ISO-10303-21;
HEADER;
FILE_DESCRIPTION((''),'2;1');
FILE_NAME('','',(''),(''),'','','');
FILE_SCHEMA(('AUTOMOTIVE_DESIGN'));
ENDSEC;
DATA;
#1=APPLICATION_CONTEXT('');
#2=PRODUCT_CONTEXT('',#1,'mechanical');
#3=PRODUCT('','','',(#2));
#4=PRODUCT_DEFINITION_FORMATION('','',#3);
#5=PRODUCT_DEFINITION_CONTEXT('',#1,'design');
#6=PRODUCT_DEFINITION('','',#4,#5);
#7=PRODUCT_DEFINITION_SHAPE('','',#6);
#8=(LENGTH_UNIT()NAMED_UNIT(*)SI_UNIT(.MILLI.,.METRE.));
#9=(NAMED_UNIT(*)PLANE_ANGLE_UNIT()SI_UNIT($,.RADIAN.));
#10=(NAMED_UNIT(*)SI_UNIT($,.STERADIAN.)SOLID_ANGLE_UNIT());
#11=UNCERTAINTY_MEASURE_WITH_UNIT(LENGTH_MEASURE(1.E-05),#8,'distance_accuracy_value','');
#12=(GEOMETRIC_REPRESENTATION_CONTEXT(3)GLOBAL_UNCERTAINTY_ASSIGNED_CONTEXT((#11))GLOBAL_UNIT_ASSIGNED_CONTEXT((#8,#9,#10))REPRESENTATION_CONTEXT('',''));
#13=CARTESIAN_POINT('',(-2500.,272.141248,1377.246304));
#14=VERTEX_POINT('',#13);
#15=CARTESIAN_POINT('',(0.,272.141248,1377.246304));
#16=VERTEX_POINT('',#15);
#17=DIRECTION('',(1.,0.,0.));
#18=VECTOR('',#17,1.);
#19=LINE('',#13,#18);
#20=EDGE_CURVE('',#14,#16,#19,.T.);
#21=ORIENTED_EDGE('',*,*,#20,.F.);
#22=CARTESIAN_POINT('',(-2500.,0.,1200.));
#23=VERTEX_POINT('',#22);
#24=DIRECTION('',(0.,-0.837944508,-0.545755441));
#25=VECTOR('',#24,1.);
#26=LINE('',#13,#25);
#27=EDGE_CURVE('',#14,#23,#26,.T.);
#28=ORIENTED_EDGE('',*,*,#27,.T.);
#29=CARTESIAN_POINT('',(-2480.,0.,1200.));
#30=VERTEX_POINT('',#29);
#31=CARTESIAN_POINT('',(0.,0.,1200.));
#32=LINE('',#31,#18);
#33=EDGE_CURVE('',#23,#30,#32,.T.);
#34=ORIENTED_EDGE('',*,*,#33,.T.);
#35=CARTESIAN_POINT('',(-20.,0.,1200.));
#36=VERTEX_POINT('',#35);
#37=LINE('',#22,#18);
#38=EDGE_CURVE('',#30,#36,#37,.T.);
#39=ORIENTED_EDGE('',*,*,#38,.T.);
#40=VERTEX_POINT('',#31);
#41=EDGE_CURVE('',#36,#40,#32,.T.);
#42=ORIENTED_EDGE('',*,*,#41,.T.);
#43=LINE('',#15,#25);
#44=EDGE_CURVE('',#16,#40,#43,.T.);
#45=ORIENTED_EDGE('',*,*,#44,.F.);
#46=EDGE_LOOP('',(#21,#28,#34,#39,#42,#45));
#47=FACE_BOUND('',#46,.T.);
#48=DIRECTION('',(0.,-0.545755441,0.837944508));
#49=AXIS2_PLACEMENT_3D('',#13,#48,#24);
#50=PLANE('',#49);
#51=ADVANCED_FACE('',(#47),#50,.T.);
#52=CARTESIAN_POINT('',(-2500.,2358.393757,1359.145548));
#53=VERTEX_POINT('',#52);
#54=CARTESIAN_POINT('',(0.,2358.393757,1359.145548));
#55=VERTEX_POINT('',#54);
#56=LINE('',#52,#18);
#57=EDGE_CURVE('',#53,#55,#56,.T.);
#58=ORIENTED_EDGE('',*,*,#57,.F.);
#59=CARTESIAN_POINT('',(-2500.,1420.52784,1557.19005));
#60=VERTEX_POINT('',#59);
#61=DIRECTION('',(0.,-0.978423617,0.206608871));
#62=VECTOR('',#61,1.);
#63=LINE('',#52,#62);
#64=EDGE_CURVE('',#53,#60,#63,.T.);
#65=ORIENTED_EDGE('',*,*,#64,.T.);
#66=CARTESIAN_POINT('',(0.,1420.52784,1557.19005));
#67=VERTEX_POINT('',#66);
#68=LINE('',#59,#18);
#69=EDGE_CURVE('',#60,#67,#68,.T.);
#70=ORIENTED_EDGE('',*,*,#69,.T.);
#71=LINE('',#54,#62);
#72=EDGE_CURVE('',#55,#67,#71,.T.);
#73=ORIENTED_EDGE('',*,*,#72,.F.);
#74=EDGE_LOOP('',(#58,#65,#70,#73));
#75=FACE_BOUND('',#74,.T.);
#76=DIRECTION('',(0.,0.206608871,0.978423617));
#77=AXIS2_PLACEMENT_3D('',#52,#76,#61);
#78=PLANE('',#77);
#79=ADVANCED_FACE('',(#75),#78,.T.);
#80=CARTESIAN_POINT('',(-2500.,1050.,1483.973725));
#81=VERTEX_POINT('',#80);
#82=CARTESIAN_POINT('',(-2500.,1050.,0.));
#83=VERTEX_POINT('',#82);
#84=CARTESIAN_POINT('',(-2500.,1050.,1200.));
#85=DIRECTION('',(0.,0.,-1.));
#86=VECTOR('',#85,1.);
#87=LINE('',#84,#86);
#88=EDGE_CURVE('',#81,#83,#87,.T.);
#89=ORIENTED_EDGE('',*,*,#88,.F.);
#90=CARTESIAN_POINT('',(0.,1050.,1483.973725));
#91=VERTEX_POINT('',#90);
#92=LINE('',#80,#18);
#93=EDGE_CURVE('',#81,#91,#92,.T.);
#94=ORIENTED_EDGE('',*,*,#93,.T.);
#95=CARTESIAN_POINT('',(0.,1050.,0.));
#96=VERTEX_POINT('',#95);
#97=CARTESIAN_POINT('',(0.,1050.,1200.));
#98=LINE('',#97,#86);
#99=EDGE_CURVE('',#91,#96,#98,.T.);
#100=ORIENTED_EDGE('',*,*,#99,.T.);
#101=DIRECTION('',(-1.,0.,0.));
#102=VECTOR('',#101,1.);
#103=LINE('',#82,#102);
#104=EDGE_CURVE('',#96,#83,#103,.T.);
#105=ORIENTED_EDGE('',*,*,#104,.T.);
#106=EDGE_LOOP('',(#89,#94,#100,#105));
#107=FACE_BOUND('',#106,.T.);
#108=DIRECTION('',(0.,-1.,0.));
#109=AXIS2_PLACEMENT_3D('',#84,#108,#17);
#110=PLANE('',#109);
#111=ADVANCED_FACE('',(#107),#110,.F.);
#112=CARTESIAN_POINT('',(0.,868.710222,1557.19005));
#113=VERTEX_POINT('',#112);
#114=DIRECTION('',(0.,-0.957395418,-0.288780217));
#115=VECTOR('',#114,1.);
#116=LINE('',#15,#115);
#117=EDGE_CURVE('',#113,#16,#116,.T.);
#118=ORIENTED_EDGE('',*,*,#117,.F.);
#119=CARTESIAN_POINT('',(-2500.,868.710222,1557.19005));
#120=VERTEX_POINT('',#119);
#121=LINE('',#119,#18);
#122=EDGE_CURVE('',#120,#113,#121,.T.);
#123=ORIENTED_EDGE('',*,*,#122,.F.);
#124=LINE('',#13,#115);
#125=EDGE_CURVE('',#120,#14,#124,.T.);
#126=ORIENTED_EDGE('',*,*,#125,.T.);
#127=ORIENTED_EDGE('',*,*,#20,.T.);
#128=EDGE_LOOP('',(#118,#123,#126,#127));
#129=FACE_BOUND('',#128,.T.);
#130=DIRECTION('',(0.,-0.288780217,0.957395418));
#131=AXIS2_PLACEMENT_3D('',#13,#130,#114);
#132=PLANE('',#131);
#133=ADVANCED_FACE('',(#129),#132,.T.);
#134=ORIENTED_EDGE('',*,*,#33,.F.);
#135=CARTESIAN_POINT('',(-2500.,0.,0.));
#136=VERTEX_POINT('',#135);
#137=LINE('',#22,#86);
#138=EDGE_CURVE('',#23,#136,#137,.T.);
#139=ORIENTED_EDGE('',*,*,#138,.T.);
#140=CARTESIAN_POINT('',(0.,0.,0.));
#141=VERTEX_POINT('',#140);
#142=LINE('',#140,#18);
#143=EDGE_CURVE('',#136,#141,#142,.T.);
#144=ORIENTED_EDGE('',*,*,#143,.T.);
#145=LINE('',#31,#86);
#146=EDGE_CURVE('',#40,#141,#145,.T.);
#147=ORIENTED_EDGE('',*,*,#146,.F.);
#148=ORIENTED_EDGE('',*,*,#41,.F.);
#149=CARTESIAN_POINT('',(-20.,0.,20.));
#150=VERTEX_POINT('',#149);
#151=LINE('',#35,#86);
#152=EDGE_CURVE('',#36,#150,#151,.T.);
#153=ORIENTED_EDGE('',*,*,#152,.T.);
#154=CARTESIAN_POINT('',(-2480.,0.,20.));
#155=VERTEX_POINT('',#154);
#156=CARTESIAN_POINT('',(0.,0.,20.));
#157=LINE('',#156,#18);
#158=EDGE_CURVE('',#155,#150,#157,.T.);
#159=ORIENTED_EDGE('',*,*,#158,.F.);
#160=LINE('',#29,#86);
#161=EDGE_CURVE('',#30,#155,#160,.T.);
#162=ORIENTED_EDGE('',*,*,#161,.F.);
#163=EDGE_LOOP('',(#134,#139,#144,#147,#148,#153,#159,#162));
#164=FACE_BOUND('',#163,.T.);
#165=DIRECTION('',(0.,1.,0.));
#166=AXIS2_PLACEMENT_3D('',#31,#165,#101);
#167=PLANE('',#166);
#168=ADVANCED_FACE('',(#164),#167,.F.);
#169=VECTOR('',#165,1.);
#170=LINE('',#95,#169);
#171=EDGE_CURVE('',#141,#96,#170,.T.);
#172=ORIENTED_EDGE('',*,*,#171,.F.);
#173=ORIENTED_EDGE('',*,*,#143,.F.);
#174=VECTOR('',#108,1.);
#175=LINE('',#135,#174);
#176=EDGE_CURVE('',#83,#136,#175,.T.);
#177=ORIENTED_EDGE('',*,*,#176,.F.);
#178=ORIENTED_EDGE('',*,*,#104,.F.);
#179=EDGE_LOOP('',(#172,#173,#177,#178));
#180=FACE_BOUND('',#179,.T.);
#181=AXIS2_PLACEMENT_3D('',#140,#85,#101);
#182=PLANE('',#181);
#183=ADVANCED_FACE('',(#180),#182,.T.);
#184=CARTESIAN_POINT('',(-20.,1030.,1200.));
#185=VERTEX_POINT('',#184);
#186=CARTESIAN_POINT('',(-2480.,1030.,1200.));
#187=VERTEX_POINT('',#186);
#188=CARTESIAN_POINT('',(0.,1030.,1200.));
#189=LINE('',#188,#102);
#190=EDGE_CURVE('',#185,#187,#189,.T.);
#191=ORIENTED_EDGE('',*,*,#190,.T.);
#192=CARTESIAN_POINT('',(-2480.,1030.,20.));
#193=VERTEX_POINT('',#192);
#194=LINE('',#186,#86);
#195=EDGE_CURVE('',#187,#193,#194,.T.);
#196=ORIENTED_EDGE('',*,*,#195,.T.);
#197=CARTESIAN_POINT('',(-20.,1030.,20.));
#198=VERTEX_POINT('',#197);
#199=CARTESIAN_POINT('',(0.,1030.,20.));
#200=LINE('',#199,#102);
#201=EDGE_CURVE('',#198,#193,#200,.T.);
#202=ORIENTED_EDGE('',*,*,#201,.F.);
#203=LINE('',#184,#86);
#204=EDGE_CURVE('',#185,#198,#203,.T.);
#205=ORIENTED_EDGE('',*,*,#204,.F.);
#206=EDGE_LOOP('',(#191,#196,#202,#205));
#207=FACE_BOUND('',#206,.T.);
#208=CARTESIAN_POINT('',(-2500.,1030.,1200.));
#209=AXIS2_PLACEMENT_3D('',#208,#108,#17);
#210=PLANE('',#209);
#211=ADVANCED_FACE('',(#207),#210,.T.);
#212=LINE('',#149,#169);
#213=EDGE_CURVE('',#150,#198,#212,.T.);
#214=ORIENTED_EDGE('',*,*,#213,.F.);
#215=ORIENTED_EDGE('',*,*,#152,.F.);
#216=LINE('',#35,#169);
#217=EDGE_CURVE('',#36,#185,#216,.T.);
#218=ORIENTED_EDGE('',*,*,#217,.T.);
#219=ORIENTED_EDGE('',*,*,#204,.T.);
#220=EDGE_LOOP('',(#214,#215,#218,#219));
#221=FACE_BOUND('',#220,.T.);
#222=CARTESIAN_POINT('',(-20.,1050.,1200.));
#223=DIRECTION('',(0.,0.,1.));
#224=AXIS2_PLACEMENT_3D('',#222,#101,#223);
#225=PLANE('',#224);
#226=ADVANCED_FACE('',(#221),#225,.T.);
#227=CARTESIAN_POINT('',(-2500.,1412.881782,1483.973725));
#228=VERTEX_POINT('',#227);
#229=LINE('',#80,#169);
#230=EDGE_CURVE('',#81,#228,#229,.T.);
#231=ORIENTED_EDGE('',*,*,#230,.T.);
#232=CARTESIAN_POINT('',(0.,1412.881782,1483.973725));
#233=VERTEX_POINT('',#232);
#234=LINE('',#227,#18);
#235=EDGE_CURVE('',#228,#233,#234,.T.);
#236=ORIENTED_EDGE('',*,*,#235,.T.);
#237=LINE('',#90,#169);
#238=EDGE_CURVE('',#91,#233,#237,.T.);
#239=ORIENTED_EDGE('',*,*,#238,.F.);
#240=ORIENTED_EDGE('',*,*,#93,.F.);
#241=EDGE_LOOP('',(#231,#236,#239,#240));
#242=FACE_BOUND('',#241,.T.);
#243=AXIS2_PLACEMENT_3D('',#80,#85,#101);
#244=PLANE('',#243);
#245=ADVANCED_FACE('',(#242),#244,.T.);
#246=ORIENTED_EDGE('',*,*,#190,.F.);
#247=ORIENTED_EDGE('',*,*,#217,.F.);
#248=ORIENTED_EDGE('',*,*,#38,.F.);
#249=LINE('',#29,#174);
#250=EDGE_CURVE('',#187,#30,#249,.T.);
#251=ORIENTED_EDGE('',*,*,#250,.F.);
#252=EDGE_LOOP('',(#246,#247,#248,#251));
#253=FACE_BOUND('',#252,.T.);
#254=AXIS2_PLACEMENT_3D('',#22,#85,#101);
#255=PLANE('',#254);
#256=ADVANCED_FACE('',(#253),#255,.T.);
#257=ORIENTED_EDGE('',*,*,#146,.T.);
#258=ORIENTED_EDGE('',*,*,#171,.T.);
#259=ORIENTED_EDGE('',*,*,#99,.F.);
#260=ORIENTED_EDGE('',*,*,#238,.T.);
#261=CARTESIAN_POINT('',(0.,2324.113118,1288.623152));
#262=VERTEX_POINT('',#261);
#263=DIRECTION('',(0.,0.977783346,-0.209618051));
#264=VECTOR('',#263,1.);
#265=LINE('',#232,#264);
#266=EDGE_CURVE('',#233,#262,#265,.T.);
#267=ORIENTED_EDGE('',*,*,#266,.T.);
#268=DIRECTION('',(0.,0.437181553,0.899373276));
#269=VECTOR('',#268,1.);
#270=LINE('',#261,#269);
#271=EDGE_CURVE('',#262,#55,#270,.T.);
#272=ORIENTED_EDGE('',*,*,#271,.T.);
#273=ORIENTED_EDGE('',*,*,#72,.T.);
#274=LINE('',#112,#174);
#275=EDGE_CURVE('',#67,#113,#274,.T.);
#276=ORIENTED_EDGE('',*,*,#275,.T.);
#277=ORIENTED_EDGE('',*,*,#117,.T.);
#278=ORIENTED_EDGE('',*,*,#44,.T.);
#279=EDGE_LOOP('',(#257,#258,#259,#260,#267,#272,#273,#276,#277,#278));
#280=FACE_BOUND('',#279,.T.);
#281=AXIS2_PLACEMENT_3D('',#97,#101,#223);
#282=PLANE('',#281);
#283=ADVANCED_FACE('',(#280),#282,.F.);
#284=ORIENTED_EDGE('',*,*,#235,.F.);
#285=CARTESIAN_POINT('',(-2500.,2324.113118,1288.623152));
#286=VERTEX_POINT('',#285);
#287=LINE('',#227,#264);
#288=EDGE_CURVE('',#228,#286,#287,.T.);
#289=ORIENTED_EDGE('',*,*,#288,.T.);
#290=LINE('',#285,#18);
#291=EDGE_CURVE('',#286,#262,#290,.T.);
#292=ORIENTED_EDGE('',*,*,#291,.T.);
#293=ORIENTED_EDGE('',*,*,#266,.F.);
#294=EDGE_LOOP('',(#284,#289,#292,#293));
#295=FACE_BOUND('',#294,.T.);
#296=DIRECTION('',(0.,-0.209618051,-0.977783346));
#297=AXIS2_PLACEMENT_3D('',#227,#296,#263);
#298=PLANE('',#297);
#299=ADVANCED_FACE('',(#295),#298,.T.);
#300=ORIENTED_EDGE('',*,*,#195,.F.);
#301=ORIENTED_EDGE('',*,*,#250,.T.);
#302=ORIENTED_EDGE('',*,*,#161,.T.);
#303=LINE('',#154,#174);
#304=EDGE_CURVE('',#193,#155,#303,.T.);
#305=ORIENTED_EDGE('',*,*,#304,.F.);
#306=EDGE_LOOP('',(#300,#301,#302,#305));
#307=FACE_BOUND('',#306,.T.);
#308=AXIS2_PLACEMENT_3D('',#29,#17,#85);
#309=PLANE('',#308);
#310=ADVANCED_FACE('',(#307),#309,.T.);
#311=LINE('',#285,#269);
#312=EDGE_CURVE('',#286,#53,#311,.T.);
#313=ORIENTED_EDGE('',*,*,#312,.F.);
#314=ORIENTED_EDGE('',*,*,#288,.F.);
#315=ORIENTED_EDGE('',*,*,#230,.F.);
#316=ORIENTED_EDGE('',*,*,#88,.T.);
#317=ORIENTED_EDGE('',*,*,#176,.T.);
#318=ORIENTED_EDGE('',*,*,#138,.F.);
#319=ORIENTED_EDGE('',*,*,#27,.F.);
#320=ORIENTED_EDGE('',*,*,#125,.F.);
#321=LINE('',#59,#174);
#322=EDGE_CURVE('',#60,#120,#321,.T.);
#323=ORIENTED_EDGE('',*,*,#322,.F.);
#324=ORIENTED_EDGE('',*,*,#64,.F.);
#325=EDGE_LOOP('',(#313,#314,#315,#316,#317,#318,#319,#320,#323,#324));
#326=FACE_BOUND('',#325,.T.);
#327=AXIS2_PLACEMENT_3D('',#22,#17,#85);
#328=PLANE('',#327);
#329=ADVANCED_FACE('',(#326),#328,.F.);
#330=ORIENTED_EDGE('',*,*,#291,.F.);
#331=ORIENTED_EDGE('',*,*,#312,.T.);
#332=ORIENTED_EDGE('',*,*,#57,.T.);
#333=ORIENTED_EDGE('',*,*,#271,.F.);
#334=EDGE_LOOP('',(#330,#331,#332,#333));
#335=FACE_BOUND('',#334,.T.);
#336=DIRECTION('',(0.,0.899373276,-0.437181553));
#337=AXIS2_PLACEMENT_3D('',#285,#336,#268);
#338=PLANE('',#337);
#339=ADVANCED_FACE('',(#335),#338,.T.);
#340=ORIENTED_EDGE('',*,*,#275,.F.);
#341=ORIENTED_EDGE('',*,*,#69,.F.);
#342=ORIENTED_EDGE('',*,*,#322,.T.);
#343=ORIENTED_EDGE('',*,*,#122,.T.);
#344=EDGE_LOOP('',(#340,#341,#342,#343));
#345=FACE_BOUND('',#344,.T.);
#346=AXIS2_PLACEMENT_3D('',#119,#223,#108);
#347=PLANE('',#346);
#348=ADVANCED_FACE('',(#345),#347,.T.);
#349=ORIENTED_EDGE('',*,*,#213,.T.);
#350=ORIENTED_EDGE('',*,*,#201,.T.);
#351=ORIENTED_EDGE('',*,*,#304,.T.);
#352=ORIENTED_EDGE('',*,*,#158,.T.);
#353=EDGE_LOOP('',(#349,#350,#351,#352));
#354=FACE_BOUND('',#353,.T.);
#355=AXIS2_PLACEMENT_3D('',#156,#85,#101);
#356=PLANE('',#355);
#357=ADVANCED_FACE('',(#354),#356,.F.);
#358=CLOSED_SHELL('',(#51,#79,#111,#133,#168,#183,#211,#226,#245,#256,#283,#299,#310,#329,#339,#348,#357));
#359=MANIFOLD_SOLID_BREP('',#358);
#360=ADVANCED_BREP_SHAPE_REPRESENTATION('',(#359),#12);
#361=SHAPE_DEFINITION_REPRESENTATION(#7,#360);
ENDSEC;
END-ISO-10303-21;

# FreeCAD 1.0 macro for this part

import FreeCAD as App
import Part
import Sketcher


def faces_at(feature, points):
    """Names of the faces that lie closest to the given points."""
    faces = feature.Shape.Faces
    near = lambda p: min(range(len(faces)), key=lambda i: faces[i].distToShape(Part.Vertex(*p))[0])
    return sorted({f"Face{near(p) + 1}" for p in points})


def add_polygon(sketch, points):
    """Adds a closed chain of lines whose ends are joined by coincident constraints."""
    first, n = sketch.GeometryCount, len(points)
    for a, b in zip(points, points[1:] + points[:1]):
        sketch.addGeometry(Part.LineSegment(App.Vector(*a, 0), App.Vector(*b, 0)), False)
    for i in range(n):
        sketch.addConstraint(Sketcher.Constraint("Coincident", first + i, 2, first + (i + 1) % n, 1))

doc = App.newDocument("Part")
body = doc.addObject("PartDesign::Body", "Body")

# Sketch on XY plane
sketch1 = body.newObject("Sketcher::SketchObject", "Sketch")
sketch1.AttachmentSupport = (doc.getObject("XY_Plane"), [""])
sketch1.MapMode = "FlatFace"
add_polygon(sketch1, [(-2500, 1050), (-2500, 0), (0, 0), (0, 1050)])  # lines 0-3
sketch1.addConstraint([
    Sketcher.Constraint("Vertical", 0),
    Sketcher.Constraint("Horizontal", 1),
    Sketcher.Constraint("Vertical", 2),
    Sketcher.Constraint("Horizontal", 3),
    Sketcher.Constraint("Coincident", 1, 2, -1, 1),
    Sketcher.Constraint("DistanceX", 1, 1, 1, 2, 2500.0),
    Sketcher.Constraint("DistanceY", 0, 2, 0, 1, 1050.0),
])
pad1 = body.newObject("PartDesign::Pad", "Pad")
pad1.Profile = sketch1
pad1.Length = 1200
doc.recompute()

thickness = body.newObject("PartDesign::Thickness", "Thickness")
thickness.Base = (pad1, faces_at(pad1, [(-1250, 525, 1200), (-1250, 0, 600)]))
thickness.Value = 20
thickness.Reversed = True
thickness.Join = "Intersection"

# Sketch on YZ plane
sketch2 = body.newObject("Sketcher::SketchObject", "Sketch001")
sketch2.AttachmentSupport = (doc.getObject("YZ_Plane"), [""])
sketch2.MapMode = "FlatFace"
add_polygon(sketch2, [(1050, 1200), (1050, 1483.973725), (1412.881782, 1483.973725), (2324.113118, 1288.623152), (2358.393757, 1359.145548), (1420.52784, 1557.19005), (868.710222, 1557.19005), (272.141248, 1377.246304), (0, 1200)])  # lines 0-8
sketch2.addConstraint([
    Sketcher.Constraint("Vertical", 0),
    Sketcher.Constraint("Horizontal", 1),
    Sketcher.Constraint("Horizontal", 5),
    Sketcher.Constraint("Horizontal", 8),
    Sketcher.Constraint("PointOnObject", 7, 2, -2),
    Sketcher.Constraint("DistanceX", 8, 1, 8, 2, 1050.0),
    Sketcher.Constraint("DistanceY", -1, 1, 7, 2, 1200.0),
    Sketcher.Constraint("Distance", 7, 324.772399),
    Sketcher.Constraint("DistanceX", 5, 2, 5, 1, 551.817619),
    Sketcher.Constraint("DistanceY", 3, 2, 4, 2, 198.044502),
    Sketcher.Constraint("Distance", 2, 931.935831),
    Sketcher.Constraint("Distance", 3, 78.412821),
    Sketcher.Constraint("DistanceX", 1, 1, 1, 2, 362.881782),
    Sketcher.Constraint("DistanceY", 0, 1, 0, 2, 283.973725),
    Sketcher.Constraint("DistanceX", -1, 1, 4, 2, 1420.52784),
    Sketcher.Constraint("DistanceY", -1, 1, 4, 2, 1557.19005),
    Sketcher.Constraint("DistanceX", -1, 1, 6, 2, 272.141248),
    Sketcher.Constraint("DistanceX", 2, 2, 3, 2, 34.280639),
])
pad2 = body.newObject("PartDesign::Pad", "Pad001")
pad2.Profile = sketch2
pad2.Length = 2500
pad2.Reversed = True

doc.recompute()
